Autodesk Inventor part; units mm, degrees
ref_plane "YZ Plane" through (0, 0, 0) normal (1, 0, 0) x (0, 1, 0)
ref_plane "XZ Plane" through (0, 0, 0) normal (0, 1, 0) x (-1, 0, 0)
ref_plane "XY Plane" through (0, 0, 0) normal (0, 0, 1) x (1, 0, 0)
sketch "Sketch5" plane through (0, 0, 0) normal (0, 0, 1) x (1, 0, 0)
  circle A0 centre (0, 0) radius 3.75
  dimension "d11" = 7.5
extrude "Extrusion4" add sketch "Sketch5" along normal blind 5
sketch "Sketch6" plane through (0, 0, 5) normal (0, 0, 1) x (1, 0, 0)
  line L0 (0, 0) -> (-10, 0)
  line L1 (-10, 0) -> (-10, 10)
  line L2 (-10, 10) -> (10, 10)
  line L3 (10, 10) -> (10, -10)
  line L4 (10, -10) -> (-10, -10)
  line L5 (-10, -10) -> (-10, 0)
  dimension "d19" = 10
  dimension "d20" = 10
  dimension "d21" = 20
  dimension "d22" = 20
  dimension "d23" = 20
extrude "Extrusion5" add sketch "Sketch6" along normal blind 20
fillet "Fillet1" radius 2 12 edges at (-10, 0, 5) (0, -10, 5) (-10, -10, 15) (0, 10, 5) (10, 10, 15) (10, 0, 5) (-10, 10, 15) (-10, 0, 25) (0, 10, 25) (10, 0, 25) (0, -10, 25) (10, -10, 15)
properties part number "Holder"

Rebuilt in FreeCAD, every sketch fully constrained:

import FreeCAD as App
import Part
import Sketcher
Q = App.Units.Quantity


def edges_at(feature, points):
    """Names of the edges that pass closest to the given points."""
    edges = feature.Shape.Edges
    near = lambda p: min(range(len(edges)), key=lambda i: edges[i].distToShape(Part.Vertex(*p))[0])
    return sorted({f"Edge{near(p) + 1}" for p in points})

doc = App.newDocument("Part")
params = doc.addObject("Spreadsheet::Sheet", "Params")
for row, (alias, value) in enumerate([
    ("sketch1_diameter", "7.5 mm"),
    ("pad1_length", "5 mm"),
    ("sketch2_width", "20 mm"),
    ("pad2_length", "20 mm"),
    ("fillet_radius", "2 mm"),
], start=1):
    params.set(f"A{row}", alias)
    params.set(f"B{row}", "=" + value)
    params.setAlias(f"B{row}", alias)

body = doc.addObject("PartDesign::Body", "Body")

sketch1 = body.newObject("Sketcher::SketchObject", "Sketch")
sketch1.AttachmentSupport = (doc.getObject("XY_Plane"), [""])
sketch1.MapMode = "FlatFace"
sketch1.addGeometry(Part.Circle(App.Vector(0, 0, 0), App.Vector(0, 0, 1), 3.8), False)
sketch1.addConstraint([
    Sketcher.Constraint("Coincident", 0, 3, -1, 1),
    Sketcher.Constraint("Diameter", 0, Q("7.5 mm")),
])
sketch1.setExpression("Constraints[1]", "Params.sketch1_diameter")
pad1 = body.newObject("PartDesign::Pad", "Pad")
pad1.Profile = sketch1
pad1.setExpression("Length", "Params.pad1_length")

sketch2 = body.newObject("Sketcher::SketchObject", "Sketch001")
sketch2.AttachmentSupport = (doc.getObject("XY_Plane"), [""])
sketch2.MapMode = "FlatFace"
sketch2.AttachmentOffset = App.Placement(App.Vector(0, 0, 5), App.Rotation())
sketch2.addGeometry([
    Part.LineSegment(App.Vector(-10, 10, 0), App.Vector(-10, -10, 0)),
    Part.LineSegment(App.Vector(-10, -10, 0), App.Vector(10, -10, 0)),
    Part.LineSegment(App.Vector(10, -10, 0), App.Vector(10, 10, 0)),
    Part.LineSegment(App.Vector(10, 10, 0), App.Vector(-10, 10, 0)),
], False)
sketch2.addConstraint([
    Sketcher.Constraint("Coincident", 0, 2, 1, 1),
    Sketcher.Constraint("Coincident", 1, 2, 2, 1),
    Sketcher.Constraint("Coincident", 2, 2, 3, 1),
    Sketcher.Constraint("Coincident", 3, 2, 0, 1),
    Sketcher.Constraint("Vertical", 0),
    Sketcher.Constraint("Horizontal", 1),
    Sketcher.Constraint("Vertical", 2),
    Sketcher.Constraint("Horizontal", 3),
    Sketcher.Constraint("Symmetric", 0, 2, 2, 2, -1, 1),
    Sketcher.Constraint("Equal", 3, 0),
    Sketcher.Constraint("DistanceX", 1, 1, 1, 2, Q("20 mm")),
])
sketch2.setExpression("Constraints[10]", "Params.sketch2_width")
pad2 = body.newObject("PartDesign::Pad", "Pad001")
pad2.Profile = sketch2
pad2.setExpression("Length", "Params.pad2_length")
doc.recompute()

fillet = body.newObject("PartDesign::Fillet", "Fillet")
fillet.Base = (pad2, edges_at(pad2, [
    (-10, 0, 5),
    (0, -10, 5),
    (-10, -10, 15),
    (0, 10, 5),
    (10, 10, 15),
    (10, 0, 5),
    (-10, 10, 15),
    (-10, 0, 25),
    (0, 10, 25),
    (10, 0, 25),
    (0, -10, 25),
    (10, -10, 15),
]))
fillet.setExpression("Radius", "Params.fillet_radius")

doc.recompute()
